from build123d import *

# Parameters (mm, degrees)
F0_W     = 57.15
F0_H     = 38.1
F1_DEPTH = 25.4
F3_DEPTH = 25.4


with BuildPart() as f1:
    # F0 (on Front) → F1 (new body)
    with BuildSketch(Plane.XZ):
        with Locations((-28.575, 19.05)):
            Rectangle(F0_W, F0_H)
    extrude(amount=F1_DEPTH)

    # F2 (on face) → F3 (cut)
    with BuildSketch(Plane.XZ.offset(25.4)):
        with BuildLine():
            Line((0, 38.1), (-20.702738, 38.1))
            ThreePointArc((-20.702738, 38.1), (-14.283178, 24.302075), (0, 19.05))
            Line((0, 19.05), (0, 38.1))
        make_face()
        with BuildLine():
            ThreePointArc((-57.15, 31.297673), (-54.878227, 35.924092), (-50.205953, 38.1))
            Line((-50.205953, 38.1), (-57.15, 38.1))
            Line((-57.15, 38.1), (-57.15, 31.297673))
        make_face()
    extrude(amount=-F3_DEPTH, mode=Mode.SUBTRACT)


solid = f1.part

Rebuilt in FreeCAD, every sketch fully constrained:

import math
import FreeCAD as App
import Part
import Sketcher
from FreeCAD import Vector
Q = App.Units.Quantity

doc = App.newDocument("Part")
body = doc.addObject("PartDesign::Body", "Body")

# Sketch on XZ plane
sketch1 = body.newObject("Sketcher::SketchObject", "Sketch")
sketch1.AttachmentSupport = (doc.getObject("XZ_Plane"), [""])
sketch1.MapMode = "FlatFace"
sketch1.addGeometry(Part.LineSegment(Vector(-57, 38, 0), Vector(-57, 0, 0)), False)
sketch1.addGeometry(Part.LineSegment(Vector(-57, 0, 0), Vector(0, 0, 0)), False)
sketch1.addGeometry(Part.LineSegment(Vector(0, 0, 0), Vector(0, 38, 0)), False)
sketch1.addGeometry(Part.LineSegment(Vector(0, 38, 0), Vector(-57, 38, 0)), False)
sketch1.addConstraint(Sketcher.Constraint("Coincident", 0, 2, 1, 1))
sketch1.addConstraint(Sketcher.Constraint("Coincident", 1, 2, 2, 1))
sketch1.addConstraint(Sketcher.Constraint("Coincident", 2, 2, 3, 1))
sketch1.addConstraint(Sketcher.Constraint("Coincident", 3, 2, 0, 1))
sketch1.addConstraint(Sketcher.Constraint("Vertical", 0))
sketch1.addConstraint(Sketcher.Constraint("Horizontal", 1))
sketch1.addConstraint(Sketcher.Constraint("Vertical", 2))
sketch1.addConstraint(Sketcher.Constraint("Horizontal", 3))
sketch1.addConstraint(Sketcher.Constraint("Coincident", 1, 2, -1, 1))
sketch1.addConstraint(Sketcher.Constraint("DistanceY", 0, 2, 0, 1, Q("1.5 in")))
sketch1.addConstraint(Sketcher.Constraint("DistanceX", 1, 1, 1, 2, Q("2.25 in")))
pad1 = body.newObject("PartDesign::Pad", "Pad")
pad1.Profile = sketch1
pad1.Length = Q("1 in")

# Sketch on XZ plane
sketch2 = body.newObject("Sketcher::SketchObject", "Sketch001")
sketch2.AttachmentSupport = (doc.getObject("XZ_Plane"), [""])
sketch2.MapMode = "FlatFace"
sketch2.AttachmentOffset = App.Placement(Vector(0, 0, 1 * 25.4), App.Rotation())
sketch2.addGeometry(Part.LineSegment(Vector(0, 38, 0), Vector(-21, 38, 0)), False)
sketch2.addGeometry(Part.ArcOfCircle(Part.Circle(Vector(-1, 39, 0), Vector(0, 0, 1), 20), math.radians(-177), math.radians(-88)), False)
sketch2.addGeometry(Part.LineSegment(Vector(0, 19, 0), Vector(0, 38, 0)), False)
sketch2.addGeometry(Part.ArcOfCircle(Part.Circle(Vector(-49, 30, 0), Vector(0, 0, 1), 8), math.radians(96), math.radians(173)), False)
sketch2.addGeometry(Part.LineSegment(Vector(-50, 38, 0), Vector(-57, 38, 0)), False)
sketch2.addGeometry(Part.LineSegment(Vector(-57, 38, 0), Vector(-57, 31, 0)), False)
sketch2.addConstraint(Sketcher.Constraint("Coincident", 0, 2, 1, 1))
sketch2.addConstraint(Sketcher.Constraint("Coincident", 1, 2, 2, 1))
sketch2.addConstraint(Sketcher.Constraint("Coincident", 2, 2, 0, 1))
sketch2.addConstraint(Sketcher.Constraint("Coincident", 3, 1, 4, 1))
sketch2.addConstraint(Sketcher.Constraint("Coincident", 4, 2, 5, 1))
sketch2.addConstraint(Sketcher.Constraint("Coincident", 5, 2, 3, 2))
sketch2.addConstraint(Sketcher.Constraint("Horizontal", 0))
sketch2.addConstraint(Sketcher.Constraint("Vertical", 2))
sketch2.addConstraint(Sketcher.Constraint("Horizontal", 4))
sketch2.addConstraint(Sketcher.Constraint("Vertical", 5))
sketch2.addConstraint(Sketcher.Constraint("PointOnObject", 1, 2, -2))
sketch2.addConstraint(Sketcher.Constraint("Horizontal", 2, 2, 3, 1))
sketch2.addConstraint(Sketcher.Constraint("DistanceY", 2, 1, 2, 2, Q("0.75 in")))
sketch2.addConstraint(Sketcher.Constraint("DistanceY", -1, 1, 0, 2, Q("1.5 in")))
sketch2.addConstraint(Sketcher.Constraint("DistanceX", 4, 2, -1, 1, Q("2.25 in")))
sketch2.addConstraint(Sketcher.Constraint("Radius", 1, 19.942142))
sketch2.addConstraint(Sketcher.Constraint("Radius", 3, 7.743988))
sketch2.addConstraint(Sketcher.Constraint("DistanceX", 0, 2, 0, 1, 20.702738))
sketch2.addConstraint(Sketcher.Constraint("DistanceX", 4, 2, 4, 1, 6.944047))
sketch2.addConstraint(Sketcher.Constraint("DistanceY", 5, 2, 5, 1, 6.802327))
pocket1 = body.newObject("PartDesign::Pocket", "Pocket")
pocket1.Profile = sketch2
pocket1.Length = Q("1 in")

doc.recompute()
